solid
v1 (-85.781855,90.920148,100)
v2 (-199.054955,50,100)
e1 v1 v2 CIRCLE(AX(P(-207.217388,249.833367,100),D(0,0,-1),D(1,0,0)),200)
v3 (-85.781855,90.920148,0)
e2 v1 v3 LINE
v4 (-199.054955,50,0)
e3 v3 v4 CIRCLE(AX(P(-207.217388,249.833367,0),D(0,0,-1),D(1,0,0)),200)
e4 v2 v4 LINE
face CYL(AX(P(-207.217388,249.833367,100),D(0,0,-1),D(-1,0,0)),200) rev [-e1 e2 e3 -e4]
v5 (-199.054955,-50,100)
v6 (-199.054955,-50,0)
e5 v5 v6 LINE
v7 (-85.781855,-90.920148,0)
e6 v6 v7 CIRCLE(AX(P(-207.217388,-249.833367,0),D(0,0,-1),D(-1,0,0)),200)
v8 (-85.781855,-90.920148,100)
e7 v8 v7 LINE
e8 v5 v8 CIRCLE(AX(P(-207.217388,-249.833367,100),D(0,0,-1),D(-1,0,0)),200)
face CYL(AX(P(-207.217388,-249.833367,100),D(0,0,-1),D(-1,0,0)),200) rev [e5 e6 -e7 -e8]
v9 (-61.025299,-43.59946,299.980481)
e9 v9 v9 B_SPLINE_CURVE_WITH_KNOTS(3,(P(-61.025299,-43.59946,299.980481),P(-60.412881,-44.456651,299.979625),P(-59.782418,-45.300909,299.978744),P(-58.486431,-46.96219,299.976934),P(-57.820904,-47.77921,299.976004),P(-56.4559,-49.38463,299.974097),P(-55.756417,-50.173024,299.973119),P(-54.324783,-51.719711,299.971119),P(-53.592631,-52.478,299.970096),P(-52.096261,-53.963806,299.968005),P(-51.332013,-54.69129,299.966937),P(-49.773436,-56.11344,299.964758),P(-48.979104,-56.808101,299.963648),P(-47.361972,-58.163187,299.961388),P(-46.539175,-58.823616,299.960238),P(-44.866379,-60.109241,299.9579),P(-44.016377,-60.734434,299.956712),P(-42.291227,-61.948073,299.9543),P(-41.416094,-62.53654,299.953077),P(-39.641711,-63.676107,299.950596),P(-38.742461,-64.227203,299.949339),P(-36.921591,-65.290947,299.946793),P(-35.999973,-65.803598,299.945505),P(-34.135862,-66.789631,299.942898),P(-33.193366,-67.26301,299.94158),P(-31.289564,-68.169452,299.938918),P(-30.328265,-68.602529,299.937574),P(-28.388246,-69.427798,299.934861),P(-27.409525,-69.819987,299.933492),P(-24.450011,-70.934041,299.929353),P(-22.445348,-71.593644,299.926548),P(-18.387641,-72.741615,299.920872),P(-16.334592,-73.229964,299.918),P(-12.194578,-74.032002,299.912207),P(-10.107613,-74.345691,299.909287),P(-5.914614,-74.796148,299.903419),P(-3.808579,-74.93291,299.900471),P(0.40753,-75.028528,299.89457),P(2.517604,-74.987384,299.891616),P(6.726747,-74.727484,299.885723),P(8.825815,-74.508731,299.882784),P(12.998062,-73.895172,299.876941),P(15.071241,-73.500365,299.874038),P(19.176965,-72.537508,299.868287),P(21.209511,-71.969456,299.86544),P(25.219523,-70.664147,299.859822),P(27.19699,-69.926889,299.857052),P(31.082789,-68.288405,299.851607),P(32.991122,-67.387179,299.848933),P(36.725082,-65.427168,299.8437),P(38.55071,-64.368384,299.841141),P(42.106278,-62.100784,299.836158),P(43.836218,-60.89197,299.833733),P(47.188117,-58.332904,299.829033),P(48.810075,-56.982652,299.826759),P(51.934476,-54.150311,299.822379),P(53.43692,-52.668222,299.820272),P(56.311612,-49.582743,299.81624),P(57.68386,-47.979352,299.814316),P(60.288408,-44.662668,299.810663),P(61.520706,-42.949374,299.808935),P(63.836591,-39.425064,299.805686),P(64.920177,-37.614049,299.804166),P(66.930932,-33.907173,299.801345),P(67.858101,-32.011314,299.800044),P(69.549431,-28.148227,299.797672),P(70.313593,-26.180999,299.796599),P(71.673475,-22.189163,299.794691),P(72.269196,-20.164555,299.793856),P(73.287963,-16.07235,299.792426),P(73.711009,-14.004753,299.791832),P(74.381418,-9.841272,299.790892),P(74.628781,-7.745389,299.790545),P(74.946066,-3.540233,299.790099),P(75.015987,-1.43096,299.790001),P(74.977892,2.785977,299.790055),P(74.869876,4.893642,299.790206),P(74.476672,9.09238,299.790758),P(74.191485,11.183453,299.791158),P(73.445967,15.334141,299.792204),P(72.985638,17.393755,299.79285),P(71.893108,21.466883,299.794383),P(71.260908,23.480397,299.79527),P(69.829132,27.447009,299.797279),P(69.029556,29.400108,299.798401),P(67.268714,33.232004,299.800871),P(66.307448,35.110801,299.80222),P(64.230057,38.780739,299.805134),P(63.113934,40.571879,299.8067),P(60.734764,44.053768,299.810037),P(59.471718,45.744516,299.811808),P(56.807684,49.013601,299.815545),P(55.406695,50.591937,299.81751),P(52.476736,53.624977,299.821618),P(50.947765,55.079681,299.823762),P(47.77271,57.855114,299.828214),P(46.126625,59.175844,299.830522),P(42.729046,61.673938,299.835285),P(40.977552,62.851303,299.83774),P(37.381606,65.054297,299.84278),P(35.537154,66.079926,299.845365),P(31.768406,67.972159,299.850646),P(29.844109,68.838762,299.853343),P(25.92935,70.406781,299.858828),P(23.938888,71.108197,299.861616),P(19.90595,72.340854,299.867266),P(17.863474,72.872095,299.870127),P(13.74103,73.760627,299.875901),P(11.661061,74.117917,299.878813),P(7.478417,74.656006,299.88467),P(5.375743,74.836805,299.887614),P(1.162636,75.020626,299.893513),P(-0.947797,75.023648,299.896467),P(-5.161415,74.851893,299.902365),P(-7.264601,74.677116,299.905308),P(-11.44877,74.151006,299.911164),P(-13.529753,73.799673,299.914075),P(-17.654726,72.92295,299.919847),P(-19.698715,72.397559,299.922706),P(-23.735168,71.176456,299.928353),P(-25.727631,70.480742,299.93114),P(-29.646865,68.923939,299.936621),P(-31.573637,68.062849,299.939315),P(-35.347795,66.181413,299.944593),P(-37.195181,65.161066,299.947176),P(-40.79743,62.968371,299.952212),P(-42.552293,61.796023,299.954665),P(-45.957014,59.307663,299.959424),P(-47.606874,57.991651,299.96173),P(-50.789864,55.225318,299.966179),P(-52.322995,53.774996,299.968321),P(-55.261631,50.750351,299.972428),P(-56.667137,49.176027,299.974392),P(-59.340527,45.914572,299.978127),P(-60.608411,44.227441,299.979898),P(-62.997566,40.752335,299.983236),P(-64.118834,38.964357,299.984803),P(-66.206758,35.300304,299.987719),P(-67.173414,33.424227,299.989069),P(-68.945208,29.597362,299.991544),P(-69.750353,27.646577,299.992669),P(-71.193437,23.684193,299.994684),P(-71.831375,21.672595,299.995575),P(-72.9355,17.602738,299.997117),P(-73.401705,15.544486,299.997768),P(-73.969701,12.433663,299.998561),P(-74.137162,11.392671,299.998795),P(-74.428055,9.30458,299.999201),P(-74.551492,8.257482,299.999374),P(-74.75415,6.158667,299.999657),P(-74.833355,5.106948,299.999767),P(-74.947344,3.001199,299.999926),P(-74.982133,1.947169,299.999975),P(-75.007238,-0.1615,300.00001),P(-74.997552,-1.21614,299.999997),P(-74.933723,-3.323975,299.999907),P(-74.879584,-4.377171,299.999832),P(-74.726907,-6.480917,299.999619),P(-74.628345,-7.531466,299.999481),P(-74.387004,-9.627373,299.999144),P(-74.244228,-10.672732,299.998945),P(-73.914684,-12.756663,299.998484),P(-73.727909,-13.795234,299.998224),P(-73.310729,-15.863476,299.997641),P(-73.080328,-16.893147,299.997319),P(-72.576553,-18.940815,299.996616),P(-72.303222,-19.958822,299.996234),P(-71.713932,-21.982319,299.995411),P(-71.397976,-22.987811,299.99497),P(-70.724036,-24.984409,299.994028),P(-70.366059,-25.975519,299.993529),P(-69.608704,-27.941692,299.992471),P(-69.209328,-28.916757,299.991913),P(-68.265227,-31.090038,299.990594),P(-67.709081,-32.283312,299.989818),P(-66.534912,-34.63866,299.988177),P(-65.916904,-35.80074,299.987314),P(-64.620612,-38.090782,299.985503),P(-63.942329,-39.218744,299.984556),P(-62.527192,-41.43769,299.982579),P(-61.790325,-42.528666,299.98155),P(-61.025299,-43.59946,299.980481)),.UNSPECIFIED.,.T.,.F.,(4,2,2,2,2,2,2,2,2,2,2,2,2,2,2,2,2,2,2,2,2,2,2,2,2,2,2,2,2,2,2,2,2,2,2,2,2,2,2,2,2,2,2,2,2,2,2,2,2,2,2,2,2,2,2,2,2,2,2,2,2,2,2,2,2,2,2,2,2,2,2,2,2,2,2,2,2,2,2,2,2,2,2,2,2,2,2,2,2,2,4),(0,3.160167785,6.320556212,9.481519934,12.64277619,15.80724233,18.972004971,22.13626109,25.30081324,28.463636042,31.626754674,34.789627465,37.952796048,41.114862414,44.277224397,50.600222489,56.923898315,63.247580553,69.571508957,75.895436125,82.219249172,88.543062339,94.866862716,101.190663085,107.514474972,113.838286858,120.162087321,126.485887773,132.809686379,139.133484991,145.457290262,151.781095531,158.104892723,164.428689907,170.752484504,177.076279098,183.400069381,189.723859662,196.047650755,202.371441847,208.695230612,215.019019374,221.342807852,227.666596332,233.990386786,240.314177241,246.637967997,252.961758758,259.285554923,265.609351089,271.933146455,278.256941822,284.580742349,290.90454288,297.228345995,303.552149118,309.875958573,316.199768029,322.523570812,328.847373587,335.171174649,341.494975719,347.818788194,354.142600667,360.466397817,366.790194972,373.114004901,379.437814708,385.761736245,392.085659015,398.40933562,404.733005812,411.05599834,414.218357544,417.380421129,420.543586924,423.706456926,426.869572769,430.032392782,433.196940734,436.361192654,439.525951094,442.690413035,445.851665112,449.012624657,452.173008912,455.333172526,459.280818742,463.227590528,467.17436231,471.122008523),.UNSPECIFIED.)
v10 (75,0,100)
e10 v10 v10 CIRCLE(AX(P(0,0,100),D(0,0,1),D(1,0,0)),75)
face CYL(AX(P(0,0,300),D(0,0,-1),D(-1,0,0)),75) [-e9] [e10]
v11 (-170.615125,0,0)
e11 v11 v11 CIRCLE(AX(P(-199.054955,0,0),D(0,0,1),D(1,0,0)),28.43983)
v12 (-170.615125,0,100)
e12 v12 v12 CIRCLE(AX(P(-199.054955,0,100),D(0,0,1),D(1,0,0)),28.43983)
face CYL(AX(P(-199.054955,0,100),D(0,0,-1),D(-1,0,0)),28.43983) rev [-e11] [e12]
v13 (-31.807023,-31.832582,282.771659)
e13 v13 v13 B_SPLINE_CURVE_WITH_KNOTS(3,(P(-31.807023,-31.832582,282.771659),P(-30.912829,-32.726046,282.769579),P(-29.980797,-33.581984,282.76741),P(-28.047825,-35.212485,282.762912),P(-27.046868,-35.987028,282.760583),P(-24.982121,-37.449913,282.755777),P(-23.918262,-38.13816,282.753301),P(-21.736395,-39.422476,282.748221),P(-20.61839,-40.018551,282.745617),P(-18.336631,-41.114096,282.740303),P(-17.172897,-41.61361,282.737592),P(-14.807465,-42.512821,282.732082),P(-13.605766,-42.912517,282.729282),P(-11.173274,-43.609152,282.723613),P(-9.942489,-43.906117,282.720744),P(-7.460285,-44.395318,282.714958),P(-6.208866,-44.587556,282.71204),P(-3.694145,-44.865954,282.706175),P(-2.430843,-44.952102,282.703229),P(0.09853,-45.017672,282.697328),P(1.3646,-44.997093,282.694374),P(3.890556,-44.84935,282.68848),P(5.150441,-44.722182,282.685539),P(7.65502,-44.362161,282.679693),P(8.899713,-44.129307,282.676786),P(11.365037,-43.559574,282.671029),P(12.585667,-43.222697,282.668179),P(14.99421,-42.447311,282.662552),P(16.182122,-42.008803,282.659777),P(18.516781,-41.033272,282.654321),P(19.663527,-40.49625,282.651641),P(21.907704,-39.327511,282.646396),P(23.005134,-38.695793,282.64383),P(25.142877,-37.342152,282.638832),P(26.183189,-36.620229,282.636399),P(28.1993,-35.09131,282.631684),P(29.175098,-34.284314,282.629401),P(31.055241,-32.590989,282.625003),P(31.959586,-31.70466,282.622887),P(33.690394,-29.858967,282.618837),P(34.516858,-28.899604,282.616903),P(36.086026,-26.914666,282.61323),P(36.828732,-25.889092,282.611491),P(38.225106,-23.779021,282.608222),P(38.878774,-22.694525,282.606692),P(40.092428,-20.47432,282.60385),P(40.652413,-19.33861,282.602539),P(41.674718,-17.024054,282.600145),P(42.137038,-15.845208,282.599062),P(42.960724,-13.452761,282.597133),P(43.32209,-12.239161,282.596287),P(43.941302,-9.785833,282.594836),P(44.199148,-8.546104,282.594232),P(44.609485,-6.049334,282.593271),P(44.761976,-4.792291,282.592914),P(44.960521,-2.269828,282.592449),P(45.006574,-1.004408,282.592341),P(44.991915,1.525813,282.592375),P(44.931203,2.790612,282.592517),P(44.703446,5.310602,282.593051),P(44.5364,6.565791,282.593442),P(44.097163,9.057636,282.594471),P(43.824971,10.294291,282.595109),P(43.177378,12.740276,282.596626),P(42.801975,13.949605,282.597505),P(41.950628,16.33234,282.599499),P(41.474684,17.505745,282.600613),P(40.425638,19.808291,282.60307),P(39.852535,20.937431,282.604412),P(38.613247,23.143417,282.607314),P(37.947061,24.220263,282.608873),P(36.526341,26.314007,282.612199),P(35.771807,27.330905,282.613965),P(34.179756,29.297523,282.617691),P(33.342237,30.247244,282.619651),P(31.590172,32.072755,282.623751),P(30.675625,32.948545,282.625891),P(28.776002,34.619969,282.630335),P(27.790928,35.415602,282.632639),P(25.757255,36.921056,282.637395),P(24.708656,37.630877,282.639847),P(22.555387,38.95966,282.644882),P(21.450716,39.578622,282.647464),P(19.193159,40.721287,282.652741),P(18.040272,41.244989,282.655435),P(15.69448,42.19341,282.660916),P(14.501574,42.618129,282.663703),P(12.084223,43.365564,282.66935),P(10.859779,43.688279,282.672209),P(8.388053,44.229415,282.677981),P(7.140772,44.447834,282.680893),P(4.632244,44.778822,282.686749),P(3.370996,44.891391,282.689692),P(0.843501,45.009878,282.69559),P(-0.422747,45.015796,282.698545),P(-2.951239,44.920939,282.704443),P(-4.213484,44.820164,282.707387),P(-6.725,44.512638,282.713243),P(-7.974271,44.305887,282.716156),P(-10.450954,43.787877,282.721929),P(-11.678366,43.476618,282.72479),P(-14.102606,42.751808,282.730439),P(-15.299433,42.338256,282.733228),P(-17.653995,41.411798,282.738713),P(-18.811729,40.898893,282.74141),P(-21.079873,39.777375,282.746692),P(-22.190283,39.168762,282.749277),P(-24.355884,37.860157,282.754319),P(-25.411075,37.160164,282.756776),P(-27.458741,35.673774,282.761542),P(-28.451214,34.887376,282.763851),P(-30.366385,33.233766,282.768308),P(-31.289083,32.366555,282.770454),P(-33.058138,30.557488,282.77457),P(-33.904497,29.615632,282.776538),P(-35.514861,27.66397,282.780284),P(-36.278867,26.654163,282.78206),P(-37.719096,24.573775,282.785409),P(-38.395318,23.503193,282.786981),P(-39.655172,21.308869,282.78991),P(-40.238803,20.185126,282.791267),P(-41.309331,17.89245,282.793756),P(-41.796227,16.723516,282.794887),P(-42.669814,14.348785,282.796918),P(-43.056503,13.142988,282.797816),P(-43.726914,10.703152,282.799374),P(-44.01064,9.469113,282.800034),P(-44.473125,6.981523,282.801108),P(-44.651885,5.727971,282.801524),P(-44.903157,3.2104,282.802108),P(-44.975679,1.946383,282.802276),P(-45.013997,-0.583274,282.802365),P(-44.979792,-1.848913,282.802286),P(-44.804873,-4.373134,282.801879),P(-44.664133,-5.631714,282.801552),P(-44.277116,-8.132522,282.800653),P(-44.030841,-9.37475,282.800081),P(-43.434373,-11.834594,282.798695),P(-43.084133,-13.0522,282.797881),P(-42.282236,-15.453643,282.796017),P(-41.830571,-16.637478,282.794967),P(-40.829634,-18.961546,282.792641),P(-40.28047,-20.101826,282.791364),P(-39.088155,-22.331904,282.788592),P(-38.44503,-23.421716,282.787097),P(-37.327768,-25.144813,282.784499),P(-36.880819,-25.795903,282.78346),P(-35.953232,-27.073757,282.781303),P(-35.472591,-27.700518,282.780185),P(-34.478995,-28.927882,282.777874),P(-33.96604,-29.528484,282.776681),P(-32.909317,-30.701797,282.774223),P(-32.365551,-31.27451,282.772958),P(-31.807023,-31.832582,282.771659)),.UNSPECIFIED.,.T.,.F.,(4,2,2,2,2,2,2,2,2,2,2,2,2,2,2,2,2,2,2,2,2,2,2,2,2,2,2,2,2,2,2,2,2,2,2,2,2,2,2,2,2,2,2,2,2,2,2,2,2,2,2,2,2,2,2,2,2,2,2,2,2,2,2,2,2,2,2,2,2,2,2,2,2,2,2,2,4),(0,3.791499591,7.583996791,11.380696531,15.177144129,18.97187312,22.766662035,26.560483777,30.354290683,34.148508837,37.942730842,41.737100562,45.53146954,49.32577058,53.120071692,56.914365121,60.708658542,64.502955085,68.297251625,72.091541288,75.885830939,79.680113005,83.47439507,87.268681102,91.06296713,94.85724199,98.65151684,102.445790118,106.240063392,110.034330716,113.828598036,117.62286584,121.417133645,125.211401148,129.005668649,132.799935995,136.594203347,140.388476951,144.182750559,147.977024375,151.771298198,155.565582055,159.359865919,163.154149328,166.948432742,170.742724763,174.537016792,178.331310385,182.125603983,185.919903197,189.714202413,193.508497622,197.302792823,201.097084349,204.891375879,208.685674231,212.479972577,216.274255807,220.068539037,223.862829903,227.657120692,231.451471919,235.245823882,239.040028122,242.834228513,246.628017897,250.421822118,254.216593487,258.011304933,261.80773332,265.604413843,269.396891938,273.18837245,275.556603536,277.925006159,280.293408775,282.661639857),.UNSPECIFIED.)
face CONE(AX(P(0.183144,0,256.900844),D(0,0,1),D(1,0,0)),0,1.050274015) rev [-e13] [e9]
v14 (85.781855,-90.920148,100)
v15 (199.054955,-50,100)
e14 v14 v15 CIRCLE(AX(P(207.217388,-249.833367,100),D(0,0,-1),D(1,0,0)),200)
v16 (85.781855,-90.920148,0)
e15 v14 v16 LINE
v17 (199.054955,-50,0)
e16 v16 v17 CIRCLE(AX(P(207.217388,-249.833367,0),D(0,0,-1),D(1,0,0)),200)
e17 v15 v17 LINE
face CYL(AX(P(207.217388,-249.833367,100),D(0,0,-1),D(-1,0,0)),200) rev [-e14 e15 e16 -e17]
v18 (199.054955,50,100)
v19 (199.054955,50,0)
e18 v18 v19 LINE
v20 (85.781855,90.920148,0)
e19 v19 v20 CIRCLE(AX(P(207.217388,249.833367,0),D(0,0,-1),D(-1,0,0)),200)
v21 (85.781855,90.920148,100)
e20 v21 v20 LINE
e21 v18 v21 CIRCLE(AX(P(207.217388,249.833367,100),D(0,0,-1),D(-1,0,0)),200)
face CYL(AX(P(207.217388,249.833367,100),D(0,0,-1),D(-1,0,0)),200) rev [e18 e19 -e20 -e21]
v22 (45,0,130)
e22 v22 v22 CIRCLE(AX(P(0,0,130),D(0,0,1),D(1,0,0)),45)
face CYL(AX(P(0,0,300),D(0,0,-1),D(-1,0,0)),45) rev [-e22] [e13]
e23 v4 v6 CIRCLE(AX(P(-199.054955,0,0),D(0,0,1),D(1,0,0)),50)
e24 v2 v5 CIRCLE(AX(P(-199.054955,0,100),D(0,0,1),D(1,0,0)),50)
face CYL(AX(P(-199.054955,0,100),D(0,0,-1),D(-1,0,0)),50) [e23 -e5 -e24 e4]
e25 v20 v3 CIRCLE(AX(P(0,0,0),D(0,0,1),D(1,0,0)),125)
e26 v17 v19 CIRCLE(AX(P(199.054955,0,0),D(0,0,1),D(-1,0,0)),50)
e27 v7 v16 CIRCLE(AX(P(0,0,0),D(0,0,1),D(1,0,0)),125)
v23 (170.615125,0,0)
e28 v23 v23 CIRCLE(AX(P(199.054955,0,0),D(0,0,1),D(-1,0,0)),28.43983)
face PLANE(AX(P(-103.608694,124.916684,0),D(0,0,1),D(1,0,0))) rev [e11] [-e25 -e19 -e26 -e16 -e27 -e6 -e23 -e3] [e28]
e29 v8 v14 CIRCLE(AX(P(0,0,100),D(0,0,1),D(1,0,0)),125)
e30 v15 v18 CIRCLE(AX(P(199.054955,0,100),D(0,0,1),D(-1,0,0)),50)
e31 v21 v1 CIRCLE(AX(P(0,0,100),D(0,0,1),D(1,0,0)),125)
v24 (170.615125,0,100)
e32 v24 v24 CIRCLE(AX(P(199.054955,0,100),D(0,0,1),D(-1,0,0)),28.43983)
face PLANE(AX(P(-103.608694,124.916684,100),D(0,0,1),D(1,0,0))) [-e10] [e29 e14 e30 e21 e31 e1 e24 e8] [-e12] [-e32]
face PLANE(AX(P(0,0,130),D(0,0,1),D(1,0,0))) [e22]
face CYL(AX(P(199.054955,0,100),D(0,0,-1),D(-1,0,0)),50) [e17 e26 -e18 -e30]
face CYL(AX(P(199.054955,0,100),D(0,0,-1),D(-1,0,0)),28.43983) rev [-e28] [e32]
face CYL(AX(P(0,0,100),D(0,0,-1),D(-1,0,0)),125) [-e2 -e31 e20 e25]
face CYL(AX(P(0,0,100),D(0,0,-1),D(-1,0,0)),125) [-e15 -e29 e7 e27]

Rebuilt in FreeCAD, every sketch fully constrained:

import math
import FreeCAD as App
import Part
import Sketcher

V = App.Vector


def faces_at(feature, points):
    """Names of the faces that lie closest to the given points."""
    faces = feature.Shape.Faces
    near = lambda p: min(range(len(faces)), key=lambda i: faces[i].distToShape(Part.Vertex(*p))[0])
    return sorted({f"Face{near(p) + 1}" for p in points})

doc = App.newDocument("Part")
params = doc.addObject("Spreadsheet::Sheet", "Params")
for row, (alias, value) in enumerate([
    ("sketch1_radius", "125 mm"),
    ("sketch1_radius2", "200 mm"),
    ("sketch1_radius3", "50 mm"),
    ("pad1_length", "100 mm"),
    ("sketch2_diameter", "150 mm"),
    ("pad2_length", "200 mm"),
    ("thickness_wall", "30 mm"),
    ("groove_angle", "360 deg"),
], start=1):
    params.set(f"A{row}", alias)
    params.set(f"B{row}", "=" + value)
    params.setAlias(f"B{row}", alias)

body = doc.addObject("PartDesign::Body", "Body")

sketch1 = doc.addObject("Sketcher::SketchObject", "Sketch")
body.addObject(sketch1)
sketch1.AttachmentSupport = (doc.XY_Plane, [""])
sketch1.MapMode = "FlatFace"
sketch1.addGeometry(Part.ArcOfCircle(Part.Circle(V(0, 0, 0), V(0, 0, 1), 125), math.radians(-133), math.radians(-47)), False)
sketch1.addGeometry(Part.ArcOfCircle(Part.Circle(V(207, -250, 0), V(0, 0, 1), 200), math.radians(92), math.radians(127)), False)
sketch1.addGeometry(Part.ArcOfCircle(Part.Circle(V(199, 0, 0), V(0, 0, 1), 50), math.radians(-90), math.radians(90)), False)
sketch1.addGeometry(Part.ArcOfCircle(Part.Circle(V(207, 250, 0), V(0, 0, 1), 200), math.radians(-127), math.radians(-92)), False)
sketch1.addGeometry(Part.ArcOfCircle(Part.Circle(V(0, 0, 0), V(0, 0, 1), 125), math.radians(47), math.radians(133)), False)
sketch1.addGeometry(Part.ArcOfCircle(Part.Circle(V(-207, 250, 0), V(0, 0, 1), 200), math.radians(-88), math.radians(-53)), False)
sketch1.addGeometry(Part.ArcOfCircle(Part.Circle(V(-199, 0, 0), V(0, 0, 1), 50), math.radians(90), math.radians(270)), False)
sketch1.addGeometry(Part.ArcOfCircle(Part.Circle(V(-207, -250, 0), V(0, 0, 1), 200), math.radians(53), math.radians(88)), False)
sketch1.addGeometry(Part.Circle(V(-199, 0, 0), V(0, 0, 1), 28), False)
sketch1.addGeometry(Part.Circle(V(199, 0, 0), V(0, 0, 1), 28), False)
sketch1.addConstraint(Sketcher.Constraint("Coincident", 0, 2, 1, 2))
sketch1.addConstraint(Sketcher.Constraint("Coincident", 1, 1, 2, 1))
sketch1.addConstraint(Sketcher.Constraint("Coincident", 2, 2, 3, 2))
sketch1.addConstraint(Sketcher.Constraint("Coincident", 3, 1, 4, 1))
sketch1.addConstraint(Sketcher.Constraint("Coincident", 4, 2, 5, 2))
sketch1.addConstraint(Sketcher.Constraint("Coincident", 5, 1, 6, 1))
sketch1.addConstraint(Sketcher.Constraint("Coincident", 6, 2, 7, 2))
sketch1.addConstraint(Sketcher.Constraint("Coincident", 7, 1, 0, 1))
sketch1.addConstraint(Sketcher.Constraint("Coincident", 0, 3, -1, 1))
sketch1.addConstraint(Sketcher.Constraint("Coincident", 4, 3, -1, 1))
sketch1.addConstraint(Sketcher.Constraint("Coincident", 8, 3, 6, 3))
sketch1.addConstraint(Sketcher.Constraint("Coincident", 9, 3, 2, 3))
sketch1.addConstraint(Sketcher.Constraint("Equal", 1, 3))
sketch1.addConstraint(Sketcher.Constraint("Equal", 0, 4))
sketch1.addConstraint(Sketcher.Constraint("Equal", 3, 5))
sketch1.addConstraint(Sketcher.Constraint("Equal", 2, 6))
sketch1.addConstraint(Sketcher.Constraint("Equal", 5, 7))
sketch1.addConstraint(Sketcher.Constraint("Equal", 8, 9))
sketch1.addConstraint(Sketcher.Constraint("Symmetric", 1, 3, 5, 3, -1, 1))
sketch1.addConstraint(Sketcher.Constraint("Symmetric", 2, 3, 6, 3, -1, 1))
sketch1.addConstraint(Sketcher.Constraint("Symmetric", 3, 3, 7, 3, -1, 1))
sketch1.addConstraint(Sketcher.Constraint("Symmetric", 3, 3, 5, 3, -2))
sketch1.addConstraint(Sketcher.Constraint("PointOnObject", 2, 3, -1))
sketch1.addConstraint(Sketcher.Constraint("Vertical", 9, 3, 1, 1))
sketch1.addConstraint(Sketcher.Constraint("Radius", 0, 125.0))
sketch1.addConstraint(Sketcher.Constraint("Radius", 1, 200.0))
sketch1.addConstraint(Sketcher.Constraint("Radius", 2, 50.0))
sketch1.addConstraint(Sketcher.Constraint("Diameter", 8, 56.879661))
sketch1.addConstraint(Sketcher.Constraint("DistanceX", 0, 2, 2, 3, 113.2731))
sketch1.addConstraint(Sketcher.Constraint("DistanceX", -1, 1, 1, 3, 207.217388))
sketch1.setExpression("Constraints[24]", "Params.sketch1_radius")
sketch1.setExpression("Constraints[25]", "Params.sketch1_radius2")
sketch1.setExpression("Constraints[26]", "Params.sketch1_radius3")
pad1 = doc.addObject("PartDesign::Pad", "Pad")
body.addObject(pad1)
pad1.Profile = sketch1
pad1.setExpression("Length", "Params.pad1_length")
body2 = doc.addObject("PartDesign::Body", "Body001")

sketch2 = doc.addObject("Sketcher::SketchObject", "Sketch001")
body2.addObject(sketch2)
sketch2.AttachmentSupport = (doc.getObject("XY_Plane001"), [""])
sketch2.MapMode = "FlatFace"
sketch2.AttachmentOffset = App.Placement(V(0, 0, 100), App.Rotation())
sketch2.addGeometry(Part.Circle(V(0, 0, 0), V(0, 0, 1), 75), False)
sketch2.addConstraint(Sketcher.Constraint("Coincident", 0, 3, -1, 1))
sketch2.addConstraint(Sketcher.Constraint("Diameter", 0, 150.0))
sketch2.setExpression("Constraints[1]", "Params.sketch2_diameter")
pad2 = doc.addObject("PartDesign::Pad", "Pad001")
body2.addObject(pad2)
pad2.Profile = sketch2
pad2.setExpression("Length", "Params.pad2_length")
doc.recompute()

thickness = doc.addObject("PartDesign::Thickness", "Thickness")
body2.addObject(thickness)
thickness.Base = (pad2, faces_at(pad2, [(0, 0, 300)]))
thickness.setExpression("Value", "Params.thickness_wall")
thickness.Reversed = True
thickness.Join = "Intersection"
doc.recompute()

boolean = doc.addObject("PartDesign::Boolean", "Boolean")
body2.addObject(boolean)
boolean.Type = "Fuse"
boolean.addObjects([body])

sketch3 = doc.addObject("Sketcher::SketchObject", "Sketch002")
body2.addObject(sketch3)
sketch3.AttachmentSupport = (doc.getObject("XZ_Plane001"), [""])
sketch3.MapMode = "FlatFace"
sketch3.addGeometry(Part.LineSegment(V(0, 257, 0), V(-75, 300, 0)), False)
sketch3.addGeometry(Part.LineSegment(V(-75, 300, 0), V(0, 300, 0)), False)
sketch3.addGeometry(Part.LineSegment(V(0, 300, 0), V(0, 257, 0)), False)
sketch3.addGeometry(Part.LineSegment(V(0, 300, 0), V(0, 257, 0)), True)
sketch3.addConstraint(Sketcher.Constraint("Coincident", 0, 2, 1, 1))
sketch3.addConstraint(Sketcher.Constraint("Coincident", 1, 2, 2, 1))
sketch3.addConstraint(Sketcher.Constraint("Coincident", 2, 2, 0, 1))
sketch3.addConstraint(Sketcher.Constraint("Horizontal", 1))
sketch3.addConstraint(Sketcher.Constraint("Vertical", 2))
sketch3.addConstraint(Sketcher.Constraint("Vertical", 3))
sketch3.addConstraint(Sketcher.Constraint("Coincident", 3, 1, 1, 2))
sketch3.addConstraint(Sketcher.Constraint("Equal", 2, 3))
sketch3.addConstraint(Sketcher.Constraint("DistanceX", 0, 2, -1, 1, 75.0))
sketch3.addConstraint(Sketcher.Constraint("DistanceY", -1, 1, 0, 2, 300.0))
sketch3.addConstraint(Sketcher.Constraint("Distance", 0, 86.660501))
sketch3.addConstraint(Sketcher.Constraint("DistanceX", 1, 1, 1, 2, 75.183144))
groove = doc.addObject("PartDesign::Groove", "Groove")
body2.addObject(groove)
groove.Profile = sketch3
groove.ReferenceAxis = (sketch3, ["Axis0"])
groove.setExpression("Angle", "Params.groove_angle")

doc.recompute()
